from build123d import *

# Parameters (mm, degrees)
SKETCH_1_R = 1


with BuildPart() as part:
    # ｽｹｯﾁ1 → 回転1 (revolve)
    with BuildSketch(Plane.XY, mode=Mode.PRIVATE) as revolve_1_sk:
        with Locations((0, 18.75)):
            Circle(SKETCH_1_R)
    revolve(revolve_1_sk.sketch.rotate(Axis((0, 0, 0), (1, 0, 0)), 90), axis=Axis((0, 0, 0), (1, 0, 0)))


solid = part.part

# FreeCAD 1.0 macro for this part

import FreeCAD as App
import Part
import Sketcher

V = App.Vector
Q = App.Units.Quantity

doc = App.newDocument("Part")
body = doc.addObject("PartDesign::Body", "Body")

# Sketch on XY plane
sketch1 = body.newObject("Sketcher::SketchObject", "Sketch")
sketch1.AttachmentSupport = (doc.getObject("XY_Plane"), [""])
sketch1.MapMode = "FlatFace"
sketch1.addGeometry(Part.Circle(V(0, 18.8, 0), V(0, 0, 1), 1), False)
sketch1.addConstraint([
    Sketcher.Constraint("PointOnObject", 0, 3, -2),
    Sketcher.Constraint("Diameter", 0, Q("2 mm")),
    Sketcher.Constraint("DistanceY", -1, 1, 0, 3, Q("18.75 mm")),
])
revolution = body.newObject("PartDesign::Revolution", "Revolution")
revolution.Profile = sketch1
revolution.ReferenceAxis = (sketch1, ["H_Axis"])
revolution.Angle = 360

doc.recompute()
